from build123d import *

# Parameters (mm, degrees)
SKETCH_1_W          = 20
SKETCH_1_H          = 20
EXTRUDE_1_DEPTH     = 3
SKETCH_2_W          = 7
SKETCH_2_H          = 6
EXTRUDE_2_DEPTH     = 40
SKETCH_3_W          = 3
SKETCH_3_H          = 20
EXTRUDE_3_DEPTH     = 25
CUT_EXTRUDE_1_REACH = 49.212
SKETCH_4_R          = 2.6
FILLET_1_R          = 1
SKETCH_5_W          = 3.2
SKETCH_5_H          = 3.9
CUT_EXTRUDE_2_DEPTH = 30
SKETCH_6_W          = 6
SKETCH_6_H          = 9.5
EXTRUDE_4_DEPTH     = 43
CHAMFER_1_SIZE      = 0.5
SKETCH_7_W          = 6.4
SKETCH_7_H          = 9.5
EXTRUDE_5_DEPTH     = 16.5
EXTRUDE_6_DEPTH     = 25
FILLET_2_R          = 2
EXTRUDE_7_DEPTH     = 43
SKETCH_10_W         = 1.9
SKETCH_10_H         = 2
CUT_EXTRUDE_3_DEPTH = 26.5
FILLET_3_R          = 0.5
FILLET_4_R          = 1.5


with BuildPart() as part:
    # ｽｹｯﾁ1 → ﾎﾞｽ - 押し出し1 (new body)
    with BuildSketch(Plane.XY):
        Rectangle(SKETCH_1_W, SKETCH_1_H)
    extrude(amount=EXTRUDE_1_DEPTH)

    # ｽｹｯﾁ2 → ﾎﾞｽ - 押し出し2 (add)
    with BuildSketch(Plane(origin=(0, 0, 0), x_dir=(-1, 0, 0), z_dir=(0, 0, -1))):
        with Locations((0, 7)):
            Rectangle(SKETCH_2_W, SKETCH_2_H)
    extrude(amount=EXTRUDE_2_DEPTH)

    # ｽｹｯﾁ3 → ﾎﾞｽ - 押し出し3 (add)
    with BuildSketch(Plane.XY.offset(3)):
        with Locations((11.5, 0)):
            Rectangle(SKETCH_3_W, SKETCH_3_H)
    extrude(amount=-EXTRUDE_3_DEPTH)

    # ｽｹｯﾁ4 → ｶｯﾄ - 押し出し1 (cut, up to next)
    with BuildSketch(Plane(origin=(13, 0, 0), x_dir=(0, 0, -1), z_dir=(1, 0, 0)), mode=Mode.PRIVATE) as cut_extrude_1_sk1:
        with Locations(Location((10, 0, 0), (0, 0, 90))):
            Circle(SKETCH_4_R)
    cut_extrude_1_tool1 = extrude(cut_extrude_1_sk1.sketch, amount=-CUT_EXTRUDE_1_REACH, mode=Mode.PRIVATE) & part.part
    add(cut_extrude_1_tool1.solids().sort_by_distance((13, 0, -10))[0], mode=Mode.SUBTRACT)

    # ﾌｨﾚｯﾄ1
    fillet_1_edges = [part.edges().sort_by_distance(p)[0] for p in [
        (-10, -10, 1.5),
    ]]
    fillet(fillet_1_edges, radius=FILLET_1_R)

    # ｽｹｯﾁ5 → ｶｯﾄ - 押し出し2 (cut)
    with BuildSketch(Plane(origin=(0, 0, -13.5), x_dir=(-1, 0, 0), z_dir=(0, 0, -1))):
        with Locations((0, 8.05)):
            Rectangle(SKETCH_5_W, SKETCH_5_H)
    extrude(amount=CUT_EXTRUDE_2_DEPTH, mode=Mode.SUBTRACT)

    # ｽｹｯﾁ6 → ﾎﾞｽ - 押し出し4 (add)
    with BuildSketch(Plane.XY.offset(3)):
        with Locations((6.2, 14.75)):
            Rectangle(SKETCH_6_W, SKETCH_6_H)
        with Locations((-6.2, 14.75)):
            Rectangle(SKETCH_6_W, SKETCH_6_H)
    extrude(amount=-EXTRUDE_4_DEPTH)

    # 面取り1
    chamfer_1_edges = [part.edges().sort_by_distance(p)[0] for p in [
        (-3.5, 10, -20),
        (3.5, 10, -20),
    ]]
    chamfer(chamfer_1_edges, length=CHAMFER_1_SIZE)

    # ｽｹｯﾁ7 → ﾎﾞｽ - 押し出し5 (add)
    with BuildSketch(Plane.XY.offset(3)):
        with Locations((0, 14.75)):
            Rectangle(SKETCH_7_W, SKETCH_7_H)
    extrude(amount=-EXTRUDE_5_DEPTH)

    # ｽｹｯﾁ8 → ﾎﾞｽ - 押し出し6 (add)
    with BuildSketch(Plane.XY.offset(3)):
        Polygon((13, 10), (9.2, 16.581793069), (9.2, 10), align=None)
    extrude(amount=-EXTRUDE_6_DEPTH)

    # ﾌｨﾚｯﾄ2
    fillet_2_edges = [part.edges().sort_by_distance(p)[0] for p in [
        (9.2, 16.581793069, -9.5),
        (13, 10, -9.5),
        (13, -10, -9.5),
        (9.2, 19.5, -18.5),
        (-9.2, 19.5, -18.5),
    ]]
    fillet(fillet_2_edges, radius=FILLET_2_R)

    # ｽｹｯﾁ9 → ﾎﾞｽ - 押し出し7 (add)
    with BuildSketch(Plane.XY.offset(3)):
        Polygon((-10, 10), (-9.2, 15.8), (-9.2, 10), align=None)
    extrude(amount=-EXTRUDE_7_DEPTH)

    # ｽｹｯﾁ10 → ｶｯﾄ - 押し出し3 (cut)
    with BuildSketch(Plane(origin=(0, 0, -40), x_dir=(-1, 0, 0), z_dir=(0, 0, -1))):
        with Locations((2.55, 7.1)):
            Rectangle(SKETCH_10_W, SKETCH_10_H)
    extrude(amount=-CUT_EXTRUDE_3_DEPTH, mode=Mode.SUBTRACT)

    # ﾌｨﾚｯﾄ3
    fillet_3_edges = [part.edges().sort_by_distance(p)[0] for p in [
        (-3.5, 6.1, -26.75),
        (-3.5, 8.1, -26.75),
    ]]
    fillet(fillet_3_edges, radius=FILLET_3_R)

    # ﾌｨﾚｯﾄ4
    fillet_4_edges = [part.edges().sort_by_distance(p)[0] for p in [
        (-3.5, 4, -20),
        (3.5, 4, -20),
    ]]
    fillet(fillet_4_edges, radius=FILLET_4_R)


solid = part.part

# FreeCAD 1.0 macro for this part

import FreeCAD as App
import Part
import Sketcher
Q = App.Units.Quantity


def edges_at(feature, points):
    """Names of the edges that pass closest to the given points."""
    edges = feature.Shape.Edges
    near = lambda p: min(range(len(edges)), key=lambda i: edges[i].distToShape(Part.Vertex(*p))[0])
    return sorted({f"Edge{near(p) + 1}" for p in points})


def add_polygon(sketch, points):
    """Adds a closed chain of lines whose ends are joined by coincident constraints."""
    first, n = sketch.GeometryCount, len(points)
    for a, b in zip(points, points[1:] + points[:1]):
        sketch.addGeometry(Part.LineSegment(App.Vector(*a, 0), App.Vector(*b, 0)), False)
    for i in range(n):
        sketch.addConstraint(Sketcher.Constraint("Coincident", first + i, 2, first + (i + 1) % n, 1))

doc = App.newDocument("Part")
params = doc.addObject("Spreadsheet::Sheet", "Params")
for row, (alias, value) in enumerate([
    ("sketch1_width", "20 mm"),
    ("pad1_length", "3 mm"),
    ("sketch2_width", "7 mm"),
    ("sketch2_height", "6 mm"),
    ("pad2_length", "40 mm"),
    ("sketch3_width", "3 mm"),
    ("sketch3_height", "20 mm"),
    ("pad3_length", "25 mm"),
    ("sketch4_diameter", "5.2 mm"),
    ("fillet_radius", "1 mm"),
    ("sketch5_width", "3.2 mm"),
    ("sketch5_height", "3.9 mm"),
    ("pocket2_length", "30 mm"),
    ("sketch6_width", "6 mm"),
    ("sketch6_height", "9.5 mm"),
    ("pad4_length", "43 mm"),
    ("chamfer_size", "0.5 mm"),
    ("sketch7_width", "6.4 mm"),
    ("sketch7_height", "9.5 mm"),
    ("pad5_length", "16.5 mm"),
    ("sketch8_width", "3.8 mm"),
    ("pad6_length", "25 mm"),
    ("fillet2_radius", "2 mm"),
    ("sketch9_width", "0.8 mm"),
    ("sketch9_height", "5.8 mm"),
    ("pad7_length", "43 mm"),
    ("sketch10_height", "2 mm"),
    ("sketch10_width", "1.9 mm"),
    ("pocket3_length", "26.5 mm"),
    ("fillet3_radius", "0.5 mm"),
    ("fillet4_radius", "1.5 mm"),
], start=1):
    params.set(f"A{row}", alias)
    params.set(f"B{row}", "=" + value)
    params.setAlias(f"B{row}", alias)

body = doc.addObject("PartDesign::Body", "Body")

sketch1 = doc.addObject("Sketcher::SketchObject", "Sketch")
body.addObject(sketch1)
sketch1.AttachmentSupport = (doc.XY_Plane, [""])
sketch1.MapMode = "FlatFace"
add_polygon(sketch1, [(-10, 10), (-10, -10), (10, -10), (10, 10)])
sketch1.addConstraint(Sketcher.Constraint("Vertical", 0))
sketch1.addConstraint(Sketcher.Constraint("Horizontal", 1))
sketch1.addConstraint(Sketcher.Constraint("Vertical", 2))
sketch1.addConstraint(Sketcher.Constraint("Horizontal", 3))
sketch1.addConstraint(Sketcher.Constraint("Symmetric", 0, 2, 2, 2, -1, 1))
sketch1.addConstraint(Sketcher.Constraint("Equal", 3, 0))
sketch1.addConstraint(Sketcher.Constraint("DistanceX", 1, 1, 1, 2, 20.0))
sketch1.setExpression("Constraints[10]", "Params.sketch1_width")
pad1 = doc.addObject("PartDesign::Pad", "Pad")
body.addObject(pad1)
pad1.Profile = sketch1
pad1.setExpression("Length", "Params.pad1_length")

sketch2 = doc.addObject("Sketcher::SketchObject", "Sketch001")
body.addObject(sketch2)
sketch2.AttachmentSupport = (doc.XY_Plane, [""])
sketch2.MapMode = "FlatFace"
add_polygon(sketch2, [(4, 10), (4, 4), (-4, 4), (-4, 10)])
sketch2.addConstraint(Sketcher.Constraint("Vertical", 0))
sketch2.addConstraint(Sketcher.Constraint("Horizontal", 1))
sketch2.addConstraint(Sketcher.Constraint("Vertical", 2))
sketch2.addConstraint(Sketcher.Constraint("Horizontal", 3))
sketch2.addConstraint(Sketcher.Constraint("DistanceX", 1, 2, 1, 1, 7.0))
sketch2.addConstraint(Sketcher.Constraint("DistanceY", 0, 2, 0, 1, 6.0))
sketch2.addConstraint(Sketcher.Constraint("DistanceY", -1, 1, 0, 2, 4.0))
sketch2.addConstraint(Sketcher.Constraint("DistanceX", -1, 1, 0, 2, 3.5))
sketch2.setExpression("Constraints[8]", "Params.sketch2_width")
sketch2.setExpression("Constraints[9]", "Params.sketch2_height")
pad2 = doc.addObject("PartDesign::Pad", "Pad001")
body.addObject(pad2)
pad2.Profile = sketch2
pad2.setExpression("Length", "Params.pad2_length")
pad2.Reversed = True

sketch3 = doc.addObject("Sketcher::SketchObject", "Sketch002")
body.addObject(sketch3)
sketch3.AttachmentSupport = (doc.XY_Plane, [""])
sketch3.MapMode = "FlatFace"
sketch3.AttachmentOffset = App.Placement(App.Vector(0, 0, 3), App.Rotation())
add_polygon(sketch3, [(10, 10), (10, -10), (13, -10), (13, 10)])
sketch3.addConstraint(Sketcher.Constraint("Vertical", 0))
sketch3.addConstraint(Sketcher.Constraint("Horizontal", 1))
sketch3.addConstraint(Sketcher.Constraint("Vertical", 2))
sketch3.addConstraint(Sketcher.Constraint("Horizontal", 3))
sketch3.addConstraint(Sketcher.Constraint("DistanceX", 1, 1, 1, 2, 3.0))
sketch3.addConstraint(Sketcher.Constraint("DistanceY", 0, 2, 0, 1, 20.0))
sketch3.addConstraint(Sketcher.Constraint("DistanceX", -1, 1, 0, 2, 10.0))
sketch3.addConstraint(Sketcher.Constraint("DistanceY", 0, 2, -1, 1, 10.0))
sketch3.setExpression("Constraints[8]", "Params.sketch3_width")
sketch3.setExpression("Constraints[9]", "Params.sketch3_height")
pad3 = doc.addObject("PartDesign::Pad", "Pad002")
body.addObject(pad3)
pad3.Profile = sketch3
pad3.setExpression("Length", "Params.pad3_length")
pad3.Reversed = True

sketch4 = doc.addObject("Sketcher::SketchObject", "Sketch003")
body.addObject(sketch4)
sketch4.AttachmentSupport = (doc.YZ_Plane, [""])
sketch4.MapMode = "FlatFace"
sketch4.AttachmentOffset = App.Placement(App.Vector(0, 0, 13), App.Rotation())
sketch4.addGeometry(Part.Circle(App.Vector(0, -10, 0), App.Vector(0, 0, 1), 2.6), False)
sketch4.addConstraint(Sketcher.Constraint("PointOnObject", 0, 3, -2))
sketch4.addConstraint(Sketcher.Constraint("Diameter", 0, 5.2))
sketch4.addConstraint(Sketcher.Constraint("DistanceY", 0, 3, -1, 1, 10.0))
sketch4.setExpression("Constraints[1]", "Params.sketch4_diameter")
pocket1 = doc.addObject("PartDesign::Pocket", "Pocket")
body.addObject(pocket1)
pocket1.Profile = sketch4
pocket1.Type = "UpToFirst"
doc.recompute()

fillet = doc.addObject("PartDesign::Fillet", "Fillet")
body.addObject(fillet)
fillet.Base = (pocket1, edges_at(pocket1, [(-10, -10, 1.5)]))
fillet.setExpression("Radius", "Params.fillet_radius")

sketch5 = doc.addObject("Sketcher::SketchObject", "Sketch004")
body.addObject(sketch5)
sketch5.AttachmentSupport = (doc.XY_Plane, [""])
sketch5.MapMode = "FlatFace"
sketch5.AttachmentOffset = App.Placement(App.Vector(0, 0, -13.5), App.Rotation())
add_polygon(sketch5, [(1.6, 10), (1.6, 6.1), (-1.6, 6.1), (-1.6, 10)])
sketch5.addConstraint(Sketcher.Constraint("Vertical", 0))
sketch5.addConstraint(Sketcher.Constraint("Horizontal", 1))
sketch5.addConstraint(Sketcher.Constraint("Vertical", 2))
sketch5.addConstraint(Sketcher.Constraint("Horizontal", 3))
sketch5.addConstraint(Sketcher.Constraint("DistanceX", 1, 2, 1, 1, 3.2))
sketch5.addConstraint(Sketcher.Constraint("DistanceY", 0, 2, 0, 1, 3.9))
sketch5.addConstraint(Sketcher.Constraint("DistanceY", -1, 1, 2, 2, 10.0))
sketch5.addConstraint(Sketcher.Constraint("DistanceX", -1, 1, 0, 2, 1.6))
sketch5.setExpression("Constraints[8]", "Params.sketch5_width")
sketch5.setExpression("Constraints[9]", "Params.sketch5_height")
pocket2 = doc.addObject("PartDesign::Pocket", "Pocket001")
body.addObject(pocket2)
pocket2.Profile = sketch5
pocket2.setExpression("Length", "Params.pocket2_length")

sketch6 = doc.addObject("Sketcher::SketchObject", "Sketch005")
body.addObject(sketch6)
sketch6.AttachmentSupport = (doc.XY_Plane, [""])
sketch6.MapMode = "FlatFace"
sketch6.AttachmentOffset = App.Placement(App.Vector(0, 0, 3), App.Rotation())
add_polygon(sketch6, [(3, 20), (3, 10), (9, 10), (9, 20)])
add_polygon(sketch6, [(-9, 20), (-9, 10), (-3, 10), (-3, 20)])
sketch6.addConstraint(Sketcher.Constraint("Vertical", 0))
sketch6.addConstraint(Sketcher.Constraint("Horizontal", 1))
sketch6.addConstraint(Sketcher.Constraint("Vertical", 2))
sketch6.addConstraint(Sketcher.Constraint("Horizontal", 3))
sketch6.addConstraint(Sketcher.Constraint("Vertical", 4))
sketch6.addConstraint(Sketcher.Constraint("Horizontal", 5))
sketch6.addConstraint(Sketcher.Constraint("Vertical", 6))
sketch6.addConstraint(Sketcher.Constraint("Horizontal", 7))
sketch6.addConstraint(Sketcher.Constraint("Symmetric", 1, 2, 4, 2, -2))
sketch6.addConstraint(Sketcher.Constraint("Symmetric", 3, 2, 6, 2, -2))
sketch6.addConstraint(Sketcher.Constraint("DistanceX", 1, 1, 1, 2, 6.0))
sketch6.addConstraint(Sketcher.Constraint("DistanceY", 0, 2, 0, 1, 9.5))
sketch6.addConstraint(Sketcher.Constraint("DistanceY", -1, 1, 0, 2, 10.0))
sketch6.addConstraint(Sketcher.Constraint("DistanceX", -1, 1, 0, 2, 3.2))
sketch6.setExpression("Constraints[18]", "Params.sketch6_width")
sketch6.setExpression("Constraints[19]", "Params.sketch6_height")
pad4 = doc.addObject("PartDesign::Pad", "Pad003")
body.addObject(pad4)
pad4.Profile = sketch6
pad4.setExpression("Length", "Params.pad4_length")
pad4.Reversed = True
doc.recompute()

chamfer = doc.addObject("PartDesign::Chamfer", "Chamfer")
body.addObject(chamfer)
chamfer.Base = (pad4, edges_at(pad4, [(-3.5, 10, -20), (3.5, 10, -20)]))
chamfer.setExpression("Size", "Params.chamfer_size")

sketch7 = doc.addObject("Sketcher::SketchObject", "Sketch006")
body.addObject(sketch7)
sketch7.AttachmentSupport = (doc.XY_Plane, [""])
sketch7.MapMode = "FlatFace"
sketch7.AttachmentOffset = App.Placement(App.Vector(0, 0, 3), App.Rotation())
add_polygon(sketch7, [(-3, 20), (-3, 10), (3, 10), (3, 20)])
sketch7.addConstraint(Sketcher.Constraint("Vertical", 0))
sketch7.addConstraint(Sketcher.Constraint("Horizontal", 1))
sketch7.addConstraint(Sketcher.Constraint("Vertical", 2))
sketch7.addConstraint(Sketcher.Constraint("Horizontal", 3))
sketch7.addConstraint(Sketcher.Constraint("DistanceX", 1, 1, 1, 2, 6.4))
sketch7.addConstraint(Sketcher.Constraint("DistanceY", 0, 2, 0, 1, 9.5))
sketch7.addConstraint(Sketcher.Constraint("DistanceY", -1, 1, 0, 2, 10.0))
sketch7.addConstraint(Sketcher.Constraint("DistanceX", 0, 2, -1, 1, 3.2))
sketch7.setExpression("Constraints[8]", "Params.sketch7_width")
sketch7.setExpression("Constraints[9]", "Params.sketch7_height")
pad5 = doc.addObject("PartDesign::Pad", "Pad004")
body.addObject(pad5)
pad5.Profile = sketch7
pad5.setExpression("Length", "Params.pad5_length")
pad5.Reversed = True

sketch8 = doc.addObject("Sketcher::SketchObject", "Sketch007")
body.addObject(sketch8)
sketch8.AttachmentSupport = (doc.XY_Plane, [""])
sketch8.MapMode = "FlatFace"
sketch8.AttachmentOffset = App.Placement(App.Vector(0, 0, 3), App.Rotation())
add_polygon(sketch8, [(13, 10), (9.2, 16.6), (9.2, 10)])
sketch8.addConstraint(Sketcher.Constraint("Vertical", 1))
sketch8.addConstraint(Sketcher.Constraint("Horizontal", 2))
sketch8.addConstraint(Sketcher.Constraint("Angle", 0, Q("120 deg")))
sketch8.addConstraint(Sketcher.Constraint("DistanceX", 2, 1, 2, 2, 3.8))
sketch8.addConstraint(Sketcher.Constraint("DistanceY", -1, 1, 1, 2, 10.0))
sketch8.addConstraint(Sketcher.Constraint("DistanceX", -1, 1, 2, 2, 13.0))
sketch8.setExpression("Constraints[6]", "Params.sketch8_width")
pad6 = doc.addObject("PartDesign::Pad", "Pad005")
body.addObject(pad6)
pad6.Profile = sketch8
pad6.setExpression("Length", "Params.pad6_length")
pad6.Reversed = True
doc.recompute()

fillet2 = doc.addObject("PartDesign::Fillet", "Fillet001")
body.addObject(fillet2)
fillet2.Base = (pad6, edges_at(pad6, [
    (9.2, 16.582, -9.5),
    (13, 10, -9.5),
    (13, -10, -9.5),
    (9.2, 19.5, -18.5),
    (-9.2, 19.5, -18.5),
]))
fillet2.setExpression("Radius", "Params.fillet2_radius")

sketch9 = doc.addObject("Sketcher::SketchObject", "Sketch008")
body.addObject(sketch9)
sketch9.AttachmentSupport = (doc.XY_Plane, [""])
sketch9.MapMode = "FlatFace"
sketch9.AttachmentOffset = App.Placement(App.Vector(0, 0, 3), App.Rotation())
add_polygon(sketch9, [(-9.2, 15.8), (-10, 10), (-9.2, 10)])
sketch9.addConstraint(Sketcher.Constraint("Horizontal", 1))
sketch9.addConstraint(Sketcher.Constraint("Vertical", 2))
sketch9.addConstraint(Sketcher.Constraint("DistanceX", 1, 1, 1, 2, 0.8))
sketch9.addConstraint(Sketcher.Constraint("DistanceY", 2, 1, 2, 2, 5.8))
sketch9.addConstraint(Sketcher.Constraint("DistanceX", 0, 2, -1, 1, 10.0))
sketch9.addConstraint(Sketcher.Constraint("DistanceY", -1, 1, 0, 2, 10.0))
sketch9.setExpression("Constraints[5]", "Params.sketch9_width")
sketch9.setExpression("Constraints[6]", "Params.sketch9_height")
pad7 = doc.addObject("PartDesign::Pad", "Pad006")
body.addObject(pad7)
pad7.Profile = sketch9
pad7.setExpression("Length", "Params.pad7_length")
pad7.Reversed = True

sketch10 = doc.addObject("Sketcher::SketchObject", "Sketch009")
body.addObject(sketch10)
sketch10.AttachmentSupport = (doc.XY_Plane, [""])
sketch10.MapMode = "FlatFace"
sketch10.AttachmentOffset = App.Placement(App.Vector(0, 0, -40), App.Rotation())
add_polygon(sketch10, [(-1.6, 8.1), (-1.6, 6.1), (-3.5, 6.1), (-3.5, 8.1)])
sketch10.addConstraint(Sketcher.Constraint("Vertical", 0))
sketch10.addConstraint(Sketcher.Constraint("Horizontal", 1))
sketch10.addConstraint(Sketcher.Constraint("Vertical", 2))
sketch10.addConstraint(Sketcher.Constraint("Horizontal", 3))
sketch10.addConstraint(Sketcher.Constraint("DistanceY", 0, 2, 0, 1, 2.0))
sketch10.addConstraint(Sketcher.Constraint("DistanceX", 1, 2, 1, 1, 1.9))
sketch10.addConstraint(Sketcher.Constraint("DistanceX", 0, 2, -1, 1, 1.6))
sketch10.addConstraint(Sketcher.Constraint("DistanceY", -1, 1, 0, 2, 6.1))
sketch10.setExpression("Constraints[8]", "Params.sketch10_height")
sketch10.setExpression("Constraints[9]", "Params.sketch10_width")
pocket3 = doc.addObject("PartDesign::Pocket", "Pocket002")
body.addObject(pocket3)
pocket3.Profile = sketch10
pocket3.setExpression("Length", "Params.pocket3_length")
pocket3.Reversed = True
doc.recompute()

fillet3 = doc.addObject("PartDesign::Fillet", "Fillet002")
body.addObject(fillet3)
fillet3.Base = (pocket3, edges_at(pocket3, [(-3.5, 6.1, -26.75), (-3.5, 8.1, -26.75)]))
fillet3.setExpression("Radius", "Params.fillet3_radius")
doc.recompute()

fillet4 = doc.addObject("PartDesign::Fillet", "Fillet003")
body.addObject(fillet4)
fillet4.Base = (fillet3, edges_at(fillet3, [(-3.5, 4, -20), (3.5, 4, -20)]))
fillet4.setExpression("Radius", "Params.fillet4_radius")

doc.recompute()
